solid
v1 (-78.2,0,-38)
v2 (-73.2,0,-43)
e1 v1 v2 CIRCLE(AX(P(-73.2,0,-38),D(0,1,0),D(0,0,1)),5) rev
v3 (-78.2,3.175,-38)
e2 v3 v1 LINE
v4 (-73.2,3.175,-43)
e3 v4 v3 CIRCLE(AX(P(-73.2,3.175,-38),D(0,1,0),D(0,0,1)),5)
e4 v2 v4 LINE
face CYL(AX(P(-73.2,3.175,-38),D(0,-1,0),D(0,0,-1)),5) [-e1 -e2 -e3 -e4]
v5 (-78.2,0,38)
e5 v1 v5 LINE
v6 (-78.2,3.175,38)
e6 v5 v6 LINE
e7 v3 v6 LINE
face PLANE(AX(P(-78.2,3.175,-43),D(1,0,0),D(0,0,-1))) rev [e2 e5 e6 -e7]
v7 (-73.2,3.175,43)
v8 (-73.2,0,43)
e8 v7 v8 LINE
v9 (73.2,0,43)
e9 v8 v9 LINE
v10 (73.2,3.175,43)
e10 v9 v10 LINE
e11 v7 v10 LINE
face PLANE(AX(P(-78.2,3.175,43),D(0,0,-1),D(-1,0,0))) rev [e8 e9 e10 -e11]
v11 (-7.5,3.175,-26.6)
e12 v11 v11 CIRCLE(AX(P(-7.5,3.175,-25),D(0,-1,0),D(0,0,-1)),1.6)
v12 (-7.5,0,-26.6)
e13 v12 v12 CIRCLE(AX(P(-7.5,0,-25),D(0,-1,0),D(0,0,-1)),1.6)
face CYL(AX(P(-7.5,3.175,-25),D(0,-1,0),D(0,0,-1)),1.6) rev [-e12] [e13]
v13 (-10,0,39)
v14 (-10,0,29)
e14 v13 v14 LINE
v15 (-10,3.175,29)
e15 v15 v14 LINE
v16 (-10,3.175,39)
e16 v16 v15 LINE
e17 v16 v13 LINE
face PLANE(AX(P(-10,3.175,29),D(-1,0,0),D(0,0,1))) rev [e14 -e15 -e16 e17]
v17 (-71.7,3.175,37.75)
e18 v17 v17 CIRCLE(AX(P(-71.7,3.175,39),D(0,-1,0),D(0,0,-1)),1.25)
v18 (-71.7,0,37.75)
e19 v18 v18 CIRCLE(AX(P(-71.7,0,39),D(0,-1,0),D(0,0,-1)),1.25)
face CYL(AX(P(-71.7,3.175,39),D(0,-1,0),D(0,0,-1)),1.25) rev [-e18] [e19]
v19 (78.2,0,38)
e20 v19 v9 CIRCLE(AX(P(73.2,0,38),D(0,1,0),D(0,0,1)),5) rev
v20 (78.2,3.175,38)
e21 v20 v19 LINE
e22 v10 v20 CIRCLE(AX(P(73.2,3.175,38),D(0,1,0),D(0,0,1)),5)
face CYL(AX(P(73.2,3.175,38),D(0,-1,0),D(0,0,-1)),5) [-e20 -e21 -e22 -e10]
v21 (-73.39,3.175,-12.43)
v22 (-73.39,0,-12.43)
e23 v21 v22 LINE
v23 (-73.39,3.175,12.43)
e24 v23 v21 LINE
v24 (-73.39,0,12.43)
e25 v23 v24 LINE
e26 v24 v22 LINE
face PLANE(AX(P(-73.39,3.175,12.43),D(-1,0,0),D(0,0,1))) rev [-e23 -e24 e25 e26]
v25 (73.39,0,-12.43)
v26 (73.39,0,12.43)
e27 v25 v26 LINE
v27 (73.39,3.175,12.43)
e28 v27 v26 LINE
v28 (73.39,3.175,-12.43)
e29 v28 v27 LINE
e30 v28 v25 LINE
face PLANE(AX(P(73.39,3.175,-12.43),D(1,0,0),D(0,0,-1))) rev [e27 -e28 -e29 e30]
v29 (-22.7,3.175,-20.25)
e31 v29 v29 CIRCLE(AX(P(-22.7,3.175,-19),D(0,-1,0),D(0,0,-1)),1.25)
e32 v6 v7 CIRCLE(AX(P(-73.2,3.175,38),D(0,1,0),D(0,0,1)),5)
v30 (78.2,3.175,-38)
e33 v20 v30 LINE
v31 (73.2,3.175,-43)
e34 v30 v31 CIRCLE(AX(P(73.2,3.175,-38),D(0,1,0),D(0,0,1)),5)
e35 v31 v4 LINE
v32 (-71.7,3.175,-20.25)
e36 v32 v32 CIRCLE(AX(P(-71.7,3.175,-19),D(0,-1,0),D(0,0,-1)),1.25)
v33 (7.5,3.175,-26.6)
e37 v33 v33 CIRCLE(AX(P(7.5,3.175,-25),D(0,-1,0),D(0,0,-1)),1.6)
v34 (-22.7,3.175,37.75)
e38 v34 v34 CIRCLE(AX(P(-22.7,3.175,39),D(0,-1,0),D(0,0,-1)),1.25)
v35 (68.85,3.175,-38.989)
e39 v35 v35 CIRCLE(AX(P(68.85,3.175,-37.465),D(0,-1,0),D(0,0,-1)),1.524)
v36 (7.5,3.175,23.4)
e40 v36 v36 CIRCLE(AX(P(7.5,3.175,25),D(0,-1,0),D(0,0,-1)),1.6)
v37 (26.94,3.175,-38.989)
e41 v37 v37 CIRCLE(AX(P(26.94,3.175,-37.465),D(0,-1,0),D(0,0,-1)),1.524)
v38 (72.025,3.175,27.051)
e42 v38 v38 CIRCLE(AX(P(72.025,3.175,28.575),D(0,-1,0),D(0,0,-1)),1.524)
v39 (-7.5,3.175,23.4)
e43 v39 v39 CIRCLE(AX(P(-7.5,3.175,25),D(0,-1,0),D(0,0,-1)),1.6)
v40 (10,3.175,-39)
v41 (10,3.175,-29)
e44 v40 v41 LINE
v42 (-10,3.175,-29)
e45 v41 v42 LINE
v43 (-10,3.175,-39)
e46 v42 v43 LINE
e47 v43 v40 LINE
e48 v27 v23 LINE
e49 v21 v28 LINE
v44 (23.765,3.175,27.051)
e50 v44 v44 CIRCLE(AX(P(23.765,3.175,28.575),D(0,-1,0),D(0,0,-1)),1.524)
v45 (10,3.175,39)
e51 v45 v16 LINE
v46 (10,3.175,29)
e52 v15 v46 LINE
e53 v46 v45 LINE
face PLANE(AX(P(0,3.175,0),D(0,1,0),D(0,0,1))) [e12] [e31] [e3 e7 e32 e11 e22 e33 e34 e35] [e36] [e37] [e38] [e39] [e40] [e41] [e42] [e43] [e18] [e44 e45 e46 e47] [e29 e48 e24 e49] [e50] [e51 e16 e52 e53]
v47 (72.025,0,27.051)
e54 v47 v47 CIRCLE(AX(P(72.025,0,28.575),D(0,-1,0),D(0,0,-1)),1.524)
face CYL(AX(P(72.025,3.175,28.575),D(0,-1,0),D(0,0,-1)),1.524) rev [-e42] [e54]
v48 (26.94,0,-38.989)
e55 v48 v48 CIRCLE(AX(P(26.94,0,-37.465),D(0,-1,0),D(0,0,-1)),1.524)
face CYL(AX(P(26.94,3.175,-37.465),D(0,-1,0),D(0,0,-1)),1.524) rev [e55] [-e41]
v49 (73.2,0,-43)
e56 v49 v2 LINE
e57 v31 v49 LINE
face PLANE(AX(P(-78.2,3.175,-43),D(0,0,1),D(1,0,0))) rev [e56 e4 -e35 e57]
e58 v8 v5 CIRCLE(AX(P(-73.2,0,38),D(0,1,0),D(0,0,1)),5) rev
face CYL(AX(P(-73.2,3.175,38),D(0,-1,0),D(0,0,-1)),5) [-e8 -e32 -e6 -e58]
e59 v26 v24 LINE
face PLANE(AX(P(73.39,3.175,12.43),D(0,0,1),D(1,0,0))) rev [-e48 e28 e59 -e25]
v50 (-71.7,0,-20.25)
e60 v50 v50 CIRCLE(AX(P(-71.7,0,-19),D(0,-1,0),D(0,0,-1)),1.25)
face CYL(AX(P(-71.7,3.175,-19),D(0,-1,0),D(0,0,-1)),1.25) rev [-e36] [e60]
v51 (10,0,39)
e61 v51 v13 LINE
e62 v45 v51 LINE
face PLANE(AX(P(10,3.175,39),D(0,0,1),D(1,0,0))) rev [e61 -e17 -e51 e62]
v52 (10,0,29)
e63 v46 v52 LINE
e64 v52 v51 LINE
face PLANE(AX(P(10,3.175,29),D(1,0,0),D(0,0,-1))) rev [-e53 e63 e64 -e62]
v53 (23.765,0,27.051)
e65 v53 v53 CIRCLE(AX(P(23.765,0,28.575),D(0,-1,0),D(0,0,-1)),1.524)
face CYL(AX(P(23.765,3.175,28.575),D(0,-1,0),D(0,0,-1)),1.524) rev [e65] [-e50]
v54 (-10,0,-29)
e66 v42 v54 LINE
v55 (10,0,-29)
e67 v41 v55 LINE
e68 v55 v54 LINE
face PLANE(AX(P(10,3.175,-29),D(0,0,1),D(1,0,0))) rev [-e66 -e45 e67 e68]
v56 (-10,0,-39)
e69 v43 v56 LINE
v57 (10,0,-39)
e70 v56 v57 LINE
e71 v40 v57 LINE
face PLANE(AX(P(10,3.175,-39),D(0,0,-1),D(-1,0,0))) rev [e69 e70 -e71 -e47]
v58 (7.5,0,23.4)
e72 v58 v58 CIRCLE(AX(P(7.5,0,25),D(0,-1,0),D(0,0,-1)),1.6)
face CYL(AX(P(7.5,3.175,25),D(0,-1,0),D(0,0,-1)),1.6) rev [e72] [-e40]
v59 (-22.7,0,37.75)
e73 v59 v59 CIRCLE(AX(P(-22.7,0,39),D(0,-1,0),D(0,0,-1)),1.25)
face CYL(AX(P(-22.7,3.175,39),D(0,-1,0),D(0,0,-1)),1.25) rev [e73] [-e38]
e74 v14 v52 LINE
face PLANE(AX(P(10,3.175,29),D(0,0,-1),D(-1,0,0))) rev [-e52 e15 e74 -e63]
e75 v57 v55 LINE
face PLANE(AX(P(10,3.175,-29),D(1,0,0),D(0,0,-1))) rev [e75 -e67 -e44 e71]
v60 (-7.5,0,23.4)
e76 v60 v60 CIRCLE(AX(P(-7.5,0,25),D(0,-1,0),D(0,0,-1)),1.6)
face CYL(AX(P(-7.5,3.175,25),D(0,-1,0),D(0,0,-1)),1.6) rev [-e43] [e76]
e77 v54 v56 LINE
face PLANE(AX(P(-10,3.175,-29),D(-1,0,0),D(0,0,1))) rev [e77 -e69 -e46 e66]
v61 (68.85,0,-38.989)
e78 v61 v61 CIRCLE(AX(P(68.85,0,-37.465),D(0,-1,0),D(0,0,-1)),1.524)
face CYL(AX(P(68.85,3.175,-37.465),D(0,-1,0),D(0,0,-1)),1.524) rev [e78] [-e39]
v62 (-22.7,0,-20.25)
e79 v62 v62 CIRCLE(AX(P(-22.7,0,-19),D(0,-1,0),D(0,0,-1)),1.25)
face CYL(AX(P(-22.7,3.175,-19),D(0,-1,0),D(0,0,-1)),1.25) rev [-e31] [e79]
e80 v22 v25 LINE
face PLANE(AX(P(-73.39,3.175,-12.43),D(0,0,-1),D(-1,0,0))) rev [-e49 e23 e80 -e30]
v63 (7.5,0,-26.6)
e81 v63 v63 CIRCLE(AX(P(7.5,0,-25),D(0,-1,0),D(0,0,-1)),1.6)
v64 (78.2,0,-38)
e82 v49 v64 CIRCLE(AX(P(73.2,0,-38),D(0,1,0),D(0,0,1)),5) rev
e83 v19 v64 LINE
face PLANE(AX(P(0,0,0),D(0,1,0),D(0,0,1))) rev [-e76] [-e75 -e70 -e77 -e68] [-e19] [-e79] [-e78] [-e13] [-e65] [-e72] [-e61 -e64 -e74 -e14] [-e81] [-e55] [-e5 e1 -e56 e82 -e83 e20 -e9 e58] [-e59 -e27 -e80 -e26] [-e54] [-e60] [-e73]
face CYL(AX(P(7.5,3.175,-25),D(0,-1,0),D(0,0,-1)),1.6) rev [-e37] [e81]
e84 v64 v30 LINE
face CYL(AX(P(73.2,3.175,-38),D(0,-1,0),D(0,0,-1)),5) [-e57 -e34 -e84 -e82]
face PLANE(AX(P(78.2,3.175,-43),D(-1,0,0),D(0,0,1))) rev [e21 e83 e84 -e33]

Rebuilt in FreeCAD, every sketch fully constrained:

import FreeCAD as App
import Part
import Sketcher
from FreeCAD import Vector
Q = App.Units.Quantity


def edges_at(feature, points):
    """Names of the edges that pass closest to the given points."""
    edges = feature.Shape.Edges
    near = lambda p: min(range(len(edges)), key=lambda i: edges[i].distToShape(Part.Vertex(*p))[0])
    return sorted({f"Edge{near(p) + 1}" for p in points})


def add_polygon(sketch, points):
    """Adds a closed chain of lines whose ends are joined by coincident constraints."""
    first, n = sketch.GeometryCount, len(points)
    for a, b in zip(points, points[1:] + points[:1]):
        sketch.addGeometry(Part.LineSegment(App.Vector(*a, 0), App.Vector(*b, 0)), False)
    for i in range(n):
        sketch.addConstraint(Sketcher.Constraint("Coincident", first + i, 2, first + (i + 1) % n, 1))

doc = App.newDocument("Part")
body = doc.addObject("PartDesign::Body", "Body")

# Sketch on XZ plane
sketch1 = body.newObject("Sketcher::SketchObject", "Sketch")
sketch1.AttachmentSupport = (doc.getObject("XZ_Plane"), [""])
sketch1.MapMode = "FlatFace"
add_polygon(sketch1, [(-78.2, -43), (-78.2, 43), (78.2, 43), (78.2, -43)])  # lines 0-3
sketch1.addConstraint([
    Sketcher.Constraint("Vertical", 0),
    Sketcher.Constraint("Horizontal", 1),
    Sketcher.Constraint("Vertical", 2),
    Sketcher.Constraint("Horizontal", 3),
    Sketcher.Constraint("Symmetric", 0, 2, 2, 2, -1, 1),
    Sketcher.Constraint("DistanceY", 0, 1, 0, 2, Q("86 mm")),
    Sketcher.Constraint("DistanceX", 1, 1, 1, 2, Q("156.4 mm")),
])
pad1 = body.newObject("PartDesign::Pad", "Pad")
pad1.Profile = sketch1
pad1.Length = 3.175
pad1.Reversed = True

# Sketch on XZ plane
sketch2 = body.newObject("Sketcher::SketchObject", "Sketch001")
sketch2.AttachmentSupport = (doc.getObject("XZ_Plane"), [""])
sketch2.MapMode = "FlatFace"
sketch2.addGeometry([
    Part.Circle(Vector(-22.7, -19, 0), Vector(0, 0, 1), 1.25),  # 0
    Part.Circle(Vector(-71.7, -19, 0), Vector(0, 0, 1), 1.25),  # 1
    Part.Circle(Vector(-71.7, 39, 0), Vector(0, 0, 1), 1.25),  # 2
    Part.Circle(Vector(-22.7, 39, 0), Vector(0, 0, 1), 1.25),  # 3
    Part.Circle(Vector(72.025, 28.575, 0), Vector(0, 0, 1), 1.524),  # 4
    Part.Circle(Vector(23.765, 28.575, 0), Vector(0, 0, 1), 1.524),  # 5
    Part.Circle(Vector(68.85, -37.465, 0), Vector(0, 0, 1), 1.524),  # 6
    Part.Circle(Vector(26.94, -37.465, 0), Vector(0, 0, 1), 1.524),  # 7
], False)
sketch2.addConstraint([
    Sketcher.Constraint("Equal", 0, 1),
    Sketcher.Constraint("Equal", 1, 2),
    Sketcher.Constraint("Equal", 2, 3),
    Sketcher.Constraint("Equal", 4, 5),
    Sketcher.Constraint("Equal", 5, 6),
    Sketcher.Constraint("Equal", 6, 7),
    Sketcher.Constraint("Horizontal", 0, 3, 1, 3),
    Sketcher.Constraint("Horizontal", 2, 3, 3, 3),
    Sketcher.Constraint("Horizontal", 4, 3, 5, 3),
    Sketcher.Constraint("Horizontal", 6, 3, 7, 3),
    Sketcher.Constraint("Vertical", 1, 3, 2, 3),
    Sketcher.Constraint("Vertical", 0, 3, 3, 3),
    Sketcher.Constraint("Diameter", 0, Q("2.5 mm")),
    Sketcher.Constraint("Diameter", 4, Q("3.048 mm")),
    Sketcher.Constraint("DistanceY", 0, 3, -1, 1, Q("19 mm")),
    Sketcher.Constraint("DistanceY", -1, 1, 2, 3, Q("39 mm")),
    Sketcher.Constraint("DistanceX", 1, 3, 0, 3, Q("49 mm")),
    Sketcher.Constraint("DistanceX", 0, 3, -1, 1, Q("22.7 mm")),
    Sketcher.Constraint("DistanceX", -1, 1, 6, 3, Q("68.85 mm")),
    Sketcher.Constraint("DistanceX", -1, 1, 7, 3, Q("26.94 mm")),
    Sketcher.Constraint("DistanceX", 5, 3, 4, 3, Q("48.26 mm")),
    Sketcher.Constraint("DistanceY", 6, 3, 4, 3, Q("66.04 mm")),
    Sketcher.Constraint("DistanceX", -1, 1, 4, 3, Q("72.025 mm")),
    Sketcher.Constraint("DistanceY", -1, 1, 4, 3, Q("28.575 mm")),
])
pocket1 = body.newObject("PartDesign::Pocket", "Pocket")
pocket1.Profile = sketch2
pocket1.Type = "ThroughAll"

# Sketch on XZ plane
sketch3 = body.newObject("Sketcher::SketchObject", "Sketch002")
sketch3.AttachmentSupport = (doc.getObject("XZ_Plane"), [""])
sketch3.MapMode = "FlatFace"
add_polygon(sketch3, [(-73.39, 12.43), (-73.39, -12.43), (73.39, -12.43), (73.39, 12.43)])  # lines 0-3
sketch3.addConstraint([
    Sketcher.Constraint("Vertical", 0),
    Sketcher.Constraint("Horizontal", 1),
    Sketcher.Constraint("Vertical", 2),
    Sketcher.Constraint("Horizontal", 3),
    Sketcher.Constraint("Symmetric", 0, 2, 2, 2, -1, 1),
    Sketcher.Constraint("DistanceX", 1, 1, 1, 2, Q("146.78 mm")),
    Sketcher.Constraint("DistanceY", 0, 2, 0, 1, Q("24.86 mm")),
])
pocket2 = body.newObject("PartDesign::Pocket", "Pocket001")
pocket2.Profile = sketch3
pocket2.Type = "ThroughAll"

# Sketch on XZ plane
sketch4 = body.newObject("Sketcher::SketchObject", "Sketch003")
sketch4.AttachmentSupport = (doc.getObject("XZ_Plane"), [""])
sketch4.MapMode = "FlatFace"
sketch4.addGeometry([
    Part.Circle(Vector(7.5, -25, 0), Vector(0, 0, 1), 1.6),
    Part.Circle(Vector(-7.5, -25, 0), Vector(0, 0, 1), 1.6),
    Part.Circle(Vector(-7.5, 25, 0), Vector(0, 0, 1), 1.6),
    Part.Circle(Vector(7.5, 25, 0), Vector(0, 0, 1), 1.6),
], False)
sketch4.addConstraint([
    Sketcher.Constraint("Equal", 0, 1),
    Sketcher.Constraint("Equal", 1, 2),
    Sketcher.Constraint("Equal", 2, 3),
    Sketcher.Constraint("Symmetric", 0, 3, 2, 3, -1, 1),
    Sketcher.Constraint("Symmetric", 1, 3, 3, 3, -1, 1),
    Sketcher.Constraint("Symmetric", 0, 3, 1, 3, -2),
    Sketcher.Constraint("Diameter", 0, Q("3.2 mm")),
    Sketcher.Constraint("DistanceY", 0, 3, -1, 1, Q("25 mm")),
    Sketcher.Constraint("DistanceX", 1, 3, 0, 3, Q("15 mm")),
])
pocket3 = body.newObject("PartDesign::Pocket", "Pocket002")
pocket3.Profile = sketch4
pocket3.Type = "ThroughAll"

# Sketch on XZ plane
sketch5 = body.newObject("Sketcher::SketchObject", "Sketch004")
sketch5.AttachmentSupport = (doc.getObject("XZ_Plane"), [""])
sketch5.MapMode = "FlatFace"
add_polygon(sketch5, [(-10, 39), (-10, 29), (10, 29), (10, 39)])  # lines 0-3
add_polygon(sketch5, [(-10, -29), (-10, -39), (10, -39), (10, -29)])  # lines 4-7
sketch5.addConstraint([
    Sketcher.Constraint("Vertical", 0),
    Sketcher.Constraint("Horizontal", 1),
    Sketcher.Constraint("Vertical", 2),
    Sketcher.Constraint("Horizontal", 3),
    Sketcher.Constraint("Vertical", 4),
    Sketcher.Constraint("Horizontal", 5),
    Sketcher.Constraint("Vertical", 6),
    Sketcher.Constraint("Horizontal", 7),
    Sketcher.Constraint("Symmetric", 2, 2, 4, 2, -1, 1),
    Sketcher.Constraint("Symmetric", 0, 2, 6, 2, -1, 1),
    Sketcher.Constraint("Vertical", 3, 2, 4, 2),
    Sketcher.Constraint("DistanceX", 1, 1, 1, 2, Q("20 mm")),
    Sketcher.Constraint("DistanceY", 0, 2, 0, 1, Q("10 mm")),
    Sketcher.Constraint("DistanceY", -1, 1, 0, 2, Q("29 mm")),
])
pocket4 = body.newObject("PartDesign::Pocket", "Pocket003")
pocket4.Profile = sketch5
pocket4.Type = "ThroughAll"
doc.recompute()

fillet = body.newObject("PartDesign::Fillet", "Fillet")
fillet.Base = (pocket4, edges_at(pocket4, [
    (78.2, 1.587, 43),
    (-78.2, 1.587, 43),
    (-78.2, 1.587, -43),
    (78.2, 1.587, -43),
]))
fillet.Radius = 5

doc.recompute()
